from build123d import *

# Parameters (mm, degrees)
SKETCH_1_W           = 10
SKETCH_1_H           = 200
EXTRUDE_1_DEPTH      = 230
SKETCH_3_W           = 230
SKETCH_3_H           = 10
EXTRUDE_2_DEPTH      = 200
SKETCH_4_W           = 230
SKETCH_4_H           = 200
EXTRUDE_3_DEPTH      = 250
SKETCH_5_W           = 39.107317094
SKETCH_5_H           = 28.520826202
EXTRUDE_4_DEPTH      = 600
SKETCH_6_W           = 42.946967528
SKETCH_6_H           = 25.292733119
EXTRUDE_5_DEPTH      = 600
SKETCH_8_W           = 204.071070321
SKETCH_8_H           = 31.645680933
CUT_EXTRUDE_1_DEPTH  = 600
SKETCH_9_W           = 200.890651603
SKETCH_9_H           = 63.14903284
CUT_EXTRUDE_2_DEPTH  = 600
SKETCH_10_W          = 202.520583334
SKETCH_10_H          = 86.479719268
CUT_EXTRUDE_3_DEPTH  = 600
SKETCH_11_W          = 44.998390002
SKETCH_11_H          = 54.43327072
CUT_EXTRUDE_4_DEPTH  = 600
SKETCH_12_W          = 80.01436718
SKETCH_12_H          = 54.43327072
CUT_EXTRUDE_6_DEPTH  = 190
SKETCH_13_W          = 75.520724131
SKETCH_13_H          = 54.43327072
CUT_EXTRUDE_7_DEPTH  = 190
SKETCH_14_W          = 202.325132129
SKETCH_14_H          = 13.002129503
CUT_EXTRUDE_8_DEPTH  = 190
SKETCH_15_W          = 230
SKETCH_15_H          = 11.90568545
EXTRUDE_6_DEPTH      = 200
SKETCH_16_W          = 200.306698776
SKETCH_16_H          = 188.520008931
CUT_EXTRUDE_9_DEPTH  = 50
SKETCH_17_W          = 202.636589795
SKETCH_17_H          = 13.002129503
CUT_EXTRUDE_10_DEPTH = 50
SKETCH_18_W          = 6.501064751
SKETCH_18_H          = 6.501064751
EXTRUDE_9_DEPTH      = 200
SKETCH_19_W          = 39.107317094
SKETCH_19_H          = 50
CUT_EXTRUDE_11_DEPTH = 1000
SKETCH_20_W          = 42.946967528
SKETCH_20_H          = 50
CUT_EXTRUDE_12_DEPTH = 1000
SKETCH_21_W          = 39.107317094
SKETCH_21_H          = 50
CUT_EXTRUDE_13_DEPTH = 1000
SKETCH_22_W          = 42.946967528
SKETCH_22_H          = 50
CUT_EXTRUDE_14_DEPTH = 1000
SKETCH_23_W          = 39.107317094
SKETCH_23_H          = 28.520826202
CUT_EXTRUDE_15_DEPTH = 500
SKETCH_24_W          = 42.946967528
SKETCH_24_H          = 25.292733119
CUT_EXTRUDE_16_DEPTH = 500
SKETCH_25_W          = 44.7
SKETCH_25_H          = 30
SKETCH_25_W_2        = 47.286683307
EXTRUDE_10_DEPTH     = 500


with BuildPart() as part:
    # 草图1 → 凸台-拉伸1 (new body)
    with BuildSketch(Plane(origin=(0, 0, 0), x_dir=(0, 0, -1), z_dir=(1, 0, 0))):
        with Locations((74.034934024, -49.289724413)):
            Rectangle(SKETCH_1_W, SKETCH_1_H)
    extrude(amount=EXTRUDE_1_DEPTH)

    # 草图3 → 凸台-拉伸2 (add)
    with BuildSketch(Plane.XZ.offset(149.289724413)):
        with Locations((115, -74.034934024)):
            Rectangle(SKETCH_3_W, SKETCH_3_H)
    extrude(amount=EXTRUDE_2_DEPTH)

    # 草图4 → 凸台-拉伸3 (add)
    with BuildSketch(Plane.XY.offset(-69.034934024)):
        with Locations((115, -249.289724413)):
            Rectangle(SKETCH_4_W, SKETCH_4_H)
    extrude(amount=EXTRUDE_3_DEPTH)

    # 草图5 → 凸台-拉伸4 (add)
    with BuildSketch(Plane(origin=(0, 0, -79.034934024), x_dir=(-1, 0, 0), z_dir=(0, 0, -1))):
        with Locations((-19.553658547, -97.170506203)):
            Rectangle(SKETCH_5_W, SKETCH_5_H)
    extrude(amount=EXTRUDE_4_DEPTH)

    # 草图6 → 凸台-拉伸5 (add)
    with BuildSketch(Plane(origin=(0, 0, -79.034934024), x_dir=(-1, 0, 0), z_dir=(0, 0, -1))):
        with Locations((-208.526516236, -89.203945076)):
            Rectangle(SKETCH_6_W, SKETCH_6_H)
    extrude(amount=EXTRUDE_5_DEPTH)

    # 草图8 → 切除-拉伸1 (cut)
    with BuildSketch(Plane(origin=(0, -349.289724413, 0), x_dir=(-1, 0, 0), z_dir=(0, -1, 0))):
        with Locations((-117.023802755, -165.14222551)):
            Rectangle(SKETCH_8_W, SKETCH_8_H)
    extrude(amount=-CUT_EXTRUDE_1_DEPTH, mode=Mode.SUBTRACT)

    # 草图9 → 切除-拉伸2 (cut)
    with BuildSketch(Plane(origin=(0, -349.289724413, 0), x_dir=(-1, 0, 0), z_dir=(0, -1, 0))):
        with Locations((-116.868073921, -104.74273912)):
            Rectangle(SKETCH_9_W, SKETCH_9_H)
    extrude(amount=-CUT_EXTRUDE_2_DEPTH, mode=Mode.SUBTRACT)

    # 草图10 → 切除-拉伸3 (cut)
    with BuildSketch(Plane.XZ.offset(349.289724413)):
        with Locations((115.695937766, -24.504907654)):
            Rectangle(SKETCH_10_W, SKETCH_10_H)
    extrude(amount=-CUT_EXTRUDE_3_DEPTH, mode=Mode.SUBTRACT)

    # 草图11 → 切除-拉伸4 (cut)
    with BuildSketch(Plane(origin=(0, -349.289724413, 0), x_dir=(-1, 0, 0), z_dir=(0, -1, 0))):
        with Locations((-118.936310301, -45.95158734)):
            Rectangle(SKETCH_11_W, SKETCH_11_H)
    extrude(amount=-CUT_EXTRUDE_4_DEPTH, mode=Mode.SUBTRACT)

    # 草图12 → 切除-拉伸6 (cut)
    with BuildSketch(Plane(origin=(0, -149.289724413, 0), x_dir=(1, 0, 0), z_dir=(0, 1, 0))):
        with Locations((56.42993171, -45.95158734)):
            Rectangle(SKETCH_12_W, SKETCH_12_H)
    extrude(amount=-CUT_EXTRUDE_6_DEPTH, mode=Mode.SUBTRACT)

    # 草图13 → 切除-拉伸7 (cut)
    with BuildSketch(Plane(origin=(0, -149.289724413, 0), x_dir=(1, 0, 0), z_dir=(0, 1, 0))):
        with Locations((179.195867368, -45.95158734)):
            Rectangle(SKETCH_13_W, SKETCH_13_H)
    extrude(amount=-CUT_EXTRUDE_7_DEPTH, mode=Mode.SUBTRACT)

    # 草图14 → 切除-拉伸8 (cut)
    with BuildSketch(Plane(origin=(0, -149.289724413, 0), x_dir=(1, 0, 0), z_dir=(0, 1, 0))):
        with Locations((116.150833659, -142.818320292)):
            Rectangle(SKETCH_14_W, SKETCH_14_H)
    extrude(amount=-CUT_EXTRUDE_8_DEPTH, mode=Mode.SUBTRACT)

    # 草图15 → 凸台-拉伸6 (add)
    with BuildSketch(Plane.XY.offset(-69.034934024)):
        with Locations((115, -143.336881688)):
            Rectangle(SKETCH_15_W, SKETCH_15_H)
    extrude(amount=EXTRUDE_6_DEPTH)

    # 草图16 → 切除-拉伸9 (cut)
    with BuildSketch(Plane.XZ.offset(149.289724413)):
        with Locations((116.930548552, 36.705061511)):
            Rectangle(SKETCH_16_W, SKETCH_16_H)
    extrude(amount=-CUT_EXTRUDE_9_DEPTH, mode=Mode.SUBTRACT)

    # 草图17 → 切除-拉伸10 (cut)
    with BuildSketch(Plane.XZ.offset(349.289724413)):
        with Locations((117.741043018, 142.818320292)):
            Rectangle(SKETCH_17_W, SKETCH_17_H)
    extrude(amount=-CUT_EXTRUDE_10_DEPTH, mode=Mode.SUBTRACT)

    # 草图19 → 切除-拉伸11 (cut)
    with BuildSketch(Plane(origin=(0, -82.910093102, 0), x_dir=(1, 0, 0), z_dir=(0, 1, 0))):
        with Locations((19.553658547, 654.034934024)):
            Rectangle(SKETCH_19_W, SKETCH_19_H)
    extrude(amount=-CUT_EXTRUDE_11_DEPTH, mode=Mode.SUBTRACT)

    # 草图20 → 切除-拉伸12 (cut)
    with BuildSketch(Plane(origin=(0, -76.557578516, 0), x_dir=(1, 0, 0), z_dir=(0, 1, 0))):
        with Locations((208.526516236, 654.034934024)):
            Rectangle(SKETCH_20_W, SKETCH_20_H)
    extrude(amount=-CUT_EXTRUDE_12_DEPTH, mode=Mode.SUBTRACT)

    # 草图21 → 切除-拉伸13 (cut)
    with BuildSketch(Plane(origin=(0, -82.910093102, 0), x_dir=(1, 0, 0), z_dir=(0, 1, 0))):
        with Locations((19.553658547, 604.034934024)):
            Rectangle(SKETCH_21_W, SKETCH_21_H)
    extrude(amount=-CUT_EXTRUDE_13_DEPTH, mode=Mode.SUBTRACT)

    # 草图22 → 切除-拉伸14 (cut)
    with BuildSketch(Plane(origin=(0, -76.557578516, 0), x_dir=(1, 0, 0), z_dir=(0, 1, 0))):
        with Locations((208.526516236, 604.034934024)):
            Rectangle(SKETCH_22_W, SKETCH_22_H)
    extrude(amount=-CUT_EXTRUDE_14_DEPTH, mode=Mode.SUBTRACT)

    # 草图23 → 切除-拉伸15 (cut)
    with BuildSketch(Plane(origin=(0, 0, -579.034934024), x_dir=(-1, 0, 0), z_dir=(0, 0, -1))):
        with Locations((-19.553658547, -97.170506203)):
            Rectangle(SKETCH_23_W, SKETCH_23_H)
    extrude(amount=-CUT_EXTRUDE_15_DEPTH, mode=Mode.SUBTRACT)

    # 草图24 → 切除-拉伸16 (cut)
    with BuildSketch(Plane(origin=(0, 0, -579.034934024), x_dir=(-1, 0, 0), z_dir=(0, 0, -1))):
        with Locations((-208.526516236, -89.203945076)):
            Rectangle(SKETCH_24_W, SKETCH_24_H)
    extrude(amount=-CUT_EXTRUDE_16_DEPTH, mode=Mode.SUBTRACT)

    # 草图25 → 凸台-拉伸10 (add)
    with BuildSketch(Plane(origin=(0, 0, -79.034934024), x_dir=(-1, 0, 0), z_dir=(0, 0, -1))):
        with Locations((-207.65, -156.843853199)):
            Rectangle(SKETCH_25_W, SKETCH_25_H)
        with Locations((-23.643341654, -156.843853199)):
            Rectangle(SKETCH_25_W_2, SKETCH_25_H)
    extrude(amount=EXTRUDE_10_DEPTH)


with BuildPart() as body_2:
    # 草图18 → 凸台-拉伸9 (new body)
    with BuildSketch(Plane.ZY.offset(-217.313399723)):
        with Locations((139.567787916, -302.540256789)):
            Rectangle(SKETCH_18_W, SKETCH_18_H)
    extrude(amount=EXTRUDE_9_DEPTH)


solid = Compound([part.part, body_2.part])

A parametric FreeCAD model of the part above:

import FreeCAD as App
import Part
import Sketcher

V = App.Vector

doc = App.newDocument("Part")
body = doc.addObject("PartDesign::Body", "Body")

sketch1 = body.newObject("Sketcher::SketchObject", "Sketch")
sketch1.AttachmentSupport = (doc.getObject("YZ_Plane"), [""])
sketch1.MapMode = "FlatFace"
sketch1.addGeometry(Part.LineSegment(V(50.710276, -69.034934, 0), V(-149.289724, -69.034934, 0)), False)
sketch1.addGeometry(Part.LineSegment(V(-149.289724, -69.034934, 0), V(-149.289724, -79.034934, 0)), False)
sketch1.addGeometry(Part.LineSegment(V(-149.289724, -79.034934, 0), V(50.710276, -79.034934, 0)), False)
sketch1.addGeometry(Part.LineSegment(V(50.710276, -79.034934, 0), V(50.710276, -69.034934, 0)), False)
sketch1.addConstraint(Sketcher.Constraint("Coincident", 0, 2, 1, 1))
sketch1.addConstraint(Sketcher.Constraint("Coincident", 1, 2, 2, 1))
sketch1.addConstraint(Sketcher.Constraint("Coincident", 2, 2, 3, 1))
sketch1.addConstraint(Sketcher.Constraint("Coincident", 3, 2, 0, 1))
sketch1.addConstraint(Sketcher.Constraint("Horizontal", 0))
sketch1.addConstraint(Sketcher.Constraint("Vertical", 1))
sketch1.addConstraint(Sketcher.Constraint("Horizontal", 2))
sketch1.addConstraint(Sketcher.Constraint("Vertical", 3))
sketch1.addConstraint(Sketcher.Constraint("DistanceX", 0, 2, 0, 1, 200.0))
sketch1.addConstraint(Sketcher.Constraint("DistanceY", 1, 2, 1, 1, 10.0))
sketch1.addConstraint(Sketcher.Constraint("DistanceX", 0, 2, -1, 1, 149.289724))
sketch1.addConstraint(Sketcher.Constraint("DistanceY", 0, 2, -1, 1, 69.034934))
pad1 = body.newObject("PartDesign::Pad", "Pad")
pad1.Profile = sketch1
pad1.Length = 230

sketch2 = body.newObject("Sketcher::SketchObject", "Sketch001")
sketch2.AttachmentSupport = (doc.getObject("XZ_Plane"), [""])
sketch2.MapMode = "FlatFace"
sketch2.AttachmentOffset = App.Placement(V(0, 0, 149.289724), App.Rotation())
sketch2.addGeometry(Part.LineSegment(V(0, -69.034934, 0), V(0, -79.034934, 0)), False)
sketch2.addGeometry(Part.LineSegment(V(0, -79.034934, 0), V(230, -79.034934, 0)), False)
sketch2.addGeometry(Part.LineSegment(V(230, -79.034934, 0), V(230, -69.034934, 0)), False)
sketch2.addGeometry(Part.LineSegment(V(230, -69.034934, 0), V(0, -69.034934, 0)), False)
sketch2.addConstraint(Sketcher.Constraint("Coincident", 0, 2, 1, 1))
sketch2.addConstraint(Sketcher.Constraint("Coincident", 1, 2, 2, 1))
sketch2.addConstraint(Sketcher.Constraint("Coincident", 2, 2, 3, 1))
sketch2.addConstraint(Sketcher.Constraint("Coincident", 3, 2, 0, 1))
sketch2.addConstraint(Sketcher.Constraint("Vertical", 0))
sketch2.addConstraint(Sketcher.Constraint("Horizontal", 1))
sketch2.addConstraint(Sketcher.Constraint("Vertical", 2))
sketch2.addConstraint(Sketcher.Constraint("Horizontal", 3))
sketch2.addConstraint(Sketcher.Constraint("PointOnObject", 0, 2, -2))
sketch2.addConstraint(Sketcher.Constraint("DistanceX", 1, 1, 1, 2, 230.0))
sketch2.addConstraint(Sketcher.Constraint("DistanceY", 0, 2, 0, 1, 10.0))
sketch2.addConstraint(Sketcher.Constraint("DistanceY", 0, 2, -1, 1, 79.034934))
pad2 = body.newObject("PartDesign::Pad", "Pad001")
pad2.Profile = sketch2
pad2.Length = 200

sketch3 = body.newObject("Sketcher::SketchObject", "Sketch002")
sketch3.AttachmentSupport = (doc.getObject("XY_Plane"), [""])
sketch3.MapMode = "FlatFace"
sketch3.AttachmentOffset = App.Placement(V(0, 0, -69.034934), App.Rotation())
sketch3.addGeometry(Part.LineSegment(V(0, -149.289724, 0), V(0, -349.289724, 0)), False)
sketch3.addGeometry(Part.LineSegment(V(0, -349.289724, 0), V(230, -349.289724, 0)), False)
sketch3.addGeometry(Part.LineSegment(V(230, -349.289724, 0), V(230, -149.289724, 0)), False)
sketch3.addGeometry(Part.LineSegment(V(230, -149.289724, 0), V(0, -149.289724, 0)), False)
sketch3.addConstraint(Sketcher.Constraint("Coincident", 0, 2, 1, 1))
sketch3.addConstraint(Sketcher.Constraint("Coincident", 1, 2, 2, 1))
sketch3.addConstraint(Sketcher.Constraint("Coincident", 2, 2, 3, 1))
sketch3.addConstraint(Sketcher.Constraint("Coincident", 3, 2, 0, 1))
sketch3.addConstraint(Sketcher.Constraint("Vertical", 0))
sketch3.addConstraint(Sketcher.Constraint("Horizontal", 1))
sketch3.addConstraint(Sketcher.Constraint("Vertical", 2))
sketch3.addConstraint(Sketcher.Constraint("Horizontal", 3))
sketch3.addConstraint(Sketcher.Constraint("PointOnObject", 0, 2, -2))
sketch3.addConstraint(Sketcher.Constraint("DistanceX", 1, 1, 1, 2, 230.0))
sketch3.addConstraint(Sketcher.Constraint("DistanceY", 0, 2, 0, 1, 200.0))
sketch3.addConstraint(Sketcher.Constraint("DistanceY", 0, 2, -1, 1, 349.289724))
pad3 = body.newObject("PartDesign::Pad", "Pad002")
pad3.Profile = sketch3
pad3.Length = 250

sketch4 = body.newObject("Sketcher::SketchObject", "Sketch003")
sketch4.AttachmentSupport = (doc.getObject("XY_Plane"), [""])
sketch4.MapMode = "FlatFace"
sketch4.AttachmentOffset = App.Placement(V(0, 0, -79.034934), App.Rotation())
sketch4.addGeometry(Part.LineSegment(V(39.107317, -82.910093, 0), V(39.107317, -111.430919, 0)), False)
sketch4.addGeometry(Part.LineSegment(V(39.107317, -111.430919, 0), V(0, -111.430919, 0)), False)
sketch4.addGeometry(Part.LineSegment(V(0, -111.430919, 0), V(0, -82.910093, 0)), False)
sketch4.addGeometry(Part.LineSegment(V(0, -82.910093, 0), V(39.107317, -82.910093, 0)), False)
sketch4.addConstraint(Sketcher.Constraint("Coincident", 0, 2, 1, 1))
sketch4.addConstraint(Sketcher.Constraint("Coincident", 1, 2, 2, 1))
sketch4.addConstraint(Sketcher.Constraint("Coincident", 2, 2, 3, 1))
sketch4.addConstraint(Sketcher.Constraint("Coincident", 3, 2, 0, 1))
sketch4.addConstraint(Sketcher.Constraint("Vertical", 0))
sketch4.addConstraint(Sketcher.Constraint("Horizontal", 1))
sketch4.addConstraint(Sketcher.Constraint("Vertical", 2))
sketch4.addConstraint(Sketcher.Constraint("Horizontal", 3))
sketch4.addConstraint(Sketcher.Constraint("PointOnObject", 1, 2, -2))
sketch4.addConstraint(Sketcher.Constraint("DistanceX", 1, 2, 1, 1, 39.107317))
sketch4.addConstraint(Sketcher.Constraint("DistanceY", 0, 2, 0, 1, 28.520826))
sketch4.addConstraint(Sketcher.Constraint("DistanceY", 0, 2, -1, 1, 111.430919))
pad4 = body.newObject("PartDesign::Pad", "Pad003")
pad4.Profile = sketch4
pad4.Length = 600
pad4.Reversed = True

sketch5 = body.newObject("Sketcher::SketchObject", "Sketch004")
sketch5.AttachmentSupport = (doc.getObject("XY_Plane"), [""])
sketch5.MapMode = "FlatFace"
sketch5.AttachmentOffset = App.Placement(V(0, 0, -79.034934), App.Rotation())
sketch5.addGeometry(Part.LineSegment(V(230, -76.557579, 0), V(230, -101.850312, 0)), False)
sketch5.addGeometry(Part.LineSegment(V(230, -101.850312, 0), V(187.053032, -101.850312, 0)), False)
sketch5.addGeometry(Part.LineSegment(V(187.053032, -101.850312, 0), V(187.053032, -76.557579, 0)), False)
sketch5.addGeometry(Part.LineSegment(V(187.053032, -76.557579, 0), V(230, -76.557579, 0)), False)
sketch5.addConstraint(Sketcher.Constraint("Coincident", 0, 2, 1, 1))
sketch5.addConstraint(Sketcher.Constraint("Coincident", 1, 2, 2, 1))
sketch5.addConstraint(Sketcher.Constraint("Coincident", 2, 2, 3, 1))
sketch5.addConstraint(Sketcher.Constraint("Coincident", 3, 2, 0, 1))
sketch5.addConstraint(Sketcher.Constraint("Vertical", 0))
sketch5.addConstraint(Sketcher.Constraint("Horizontal", 1))
sketch5.addConstraint(Sketcher.Constraint("Vertical", 2))
sketch5.addConstraint(Sketcher.Constraint("Horizontal", 3))
sketch5.addConstraint(Sketcher.Constraint("DistanceX", -1, 1, 0, 2, 230.0))
sketch5.addConstraint(Sketcher.Constraint("DistanceX", 1, 2, 1, 1, 42.946968))
sketch5.addConstraint(Sketcher.Constraint("DistanceY", 0, 2, 0, 1, 25.292733))
sketch5.addConstraint(Sketcher.Constraint("DistanceY", 0, 2, -1, 1, 101.850312))
pad5 = body.newObject("PartDesign::Pad", "Pad004")
pad5.Profile = sketch5
pad5.Length = 600
pad5.Reversed = True

sketch6 = body.newObject("Sketcher::SketchObject", "Sketch005")
sketch6.AttachmentSupport = (doc.getObject("XZ_Plane"), [""])
sketch6.MapMode = "FlatFace"
sketch6.AttachmentOffset = App.Placement(V(0, 0, 349.289724), App.Rotation())
sketch6.addGeometry(Part.LineSegment(V(219.059338, 149.319385, 0), V(219.059338, 180.965066, 0)), False)
sketch6.addGeometry(Part.LineSegment(V(219.059338, 180.965066, 0), V(14.988268, 180.965066, 0)), False)
sketch6.addGeometry(Part.LineSegment(V(14.988268, 180.965066, 0), V(14.988268, 149.319385, 0)), False)
sketch6.addGeometry(Part.LineSegment(V(14.988268, 149.319385, 0), V(219.059338, 149.319385, 0)), False)
sketch6.addConstraint(Sketcher.Constraint("Coincident", 0, 2, 1, 1))
sketch6.addConstraint(Sketcher.Constraint("Coincident", 1, 2, 2, 1))
sketch6.addConstraint(Sketcher.Constraint("Coincident", 2, 2, 3, 1))
sketch6.addConstraint(Sketcher.Constraint("Coincident", 3, 2, 0, 1))
sketch6.addConstraint(Sketcher.Constraint("Vertical", 0))
sketch6.addConstraint(Sketcher.Constraint("Horizontal", 1))
sketch6.addConstraint(Sketcher.Constraint("Vertical", 2))
sketch6.addConstraint(Sketcher.Constraint("Horizontal", 3))
sketch6.addConstraint(Sketcher.Constraint("DistanceX", 1, 2, 1, 1, 204.07107))
sketch6.addConstraint(Sketcher.Constraint("DistanceY", 0, 1, 0, 2, 31.645681))
sketch6.addConstraint(Sketcher.Constraint("DistanceX", -1, 1, 0, 2, 219.059338))
sketch6.addConstraint(Sketcher.Constraint("DistanceY", -1, 1, 0, 2, 180.965066))
pocket1 = body.newObject("PartDesign::Pocket", "Pocket")
pocket1.Profile = sketch6
pocket1.Length = 600

sketch7 = body.newObject("Sketcher::SketchObject", "Sketch006")
sketch7.AttachmentSupport = (doc.getObject("XZ_Plane"), [""])
sketch7.MapMode = "FlatFace"
sketch7.AttachmentOffset = App.Placement(V(0, 0, 349.289724), App.Rotation())
sketch7.addGeometry(Part.LineSegment(V(217.3134, 73.168223, 0), V(217.3134, 136.317256, 0)), False)
sketch7.addGeometry(Part.LineSegment(V(217.3134, 136.317256, 0), V(16.422748, 136.317256, 0)), False)
sketch7.addGeometry(Part.LineSegment(V(16.422748, 136.317256, 0), V(16.422748, 73.168223, 0)), False)
sketch7.addGeometry(Part.LineSegment(V(16.422748, 73.168223, 0), V(217.3134, 73.168223, 0)), False)
sketch7.addConstraint(Sketcher.Constraint("Coincident", 0, 2, 1, 1))
sketch7.addConstraint(Sketcher.Constraint("Coincident", 1, 2, 2, 1))
sketch7.addConstraint(Sketcher.Constraint("Coincident", 2, 2, 3, 1))
sketch7.addConstraint(Sketcher.Constraint("Coincident", 3, 2, 0, 1))
sketch7.addConstraint(Sketcher.Constraint("Vertical", 0))
sketch7.addConstraint(Sketcher.Constraint("Horizontal", 1))
sketch7.addConstraint(Sketcher.Constraint("Vertical", 2))
sketch7.addConstraint(Sketcher.Constraint("Horizontal", 3))
sketch7.addConstraint(Sketcher.Constraint("DistanceX", 1, 2, 1, 1, 200.890652))
sketch7.addConstraint(Sketcher.Constraint("DistanceX", -1, 1, 0, 2, 217.3134))
sketch7.addConstraint(Sketcher.Constraint("DistanceY", 0, 1, 0, 2, 63.149033))
sketch7.addConstraint(Sketcher.Constraint("DistanceY", -1, 1, 0, 2, 136.317256))
pocket2 = body.newObject("PartDesign::Pocket", "Pocket001")
pocket2.Profile = sketch7
pocket2.Length = 600

sketch8 = body.newObject("Sketcher::SketchObject", "Sketch007")
sketch8.AttachmentSupport = (doc.getObject("XZ_Plane"), [""])
sketch8.MapMode = "FlatFace"
sketch8.AttachmentOffset = App.Placement(V(0, 0, 349.289724), App.Rotation())
sketch8.addGeometry(Part.LineSegment(V(14.435646, 18.734952, 0), V(14.435646, -67.744767, 0)), False)
sketch8.addGeometry(Part.LineSegment(V(14.435646, -67.744767, 0), V(216.956229, -67.744767, 0)), False)
sketch8.addGeometry(Part.LineSegment(V(216.956229, -67.744767, 0), V(216.956229, 18.734952, 0)), False)
sketch8.addGeometry(Part.LineSegment(V(216.956229, 18.734952, 0), V(14.435646, 18.734952, 0)), False)
sketch8.addConstraint(Sketcher.Constraint("Coincident", 0, 2, 1, 1))
sketch8.addConstraint(Sketcher.Constraint("Coincident", 1, 2, 2, 1))
sketch8.addConstraint(Sketcher.Constraint("Coincident", 2, 2, 3, 1))
sketch8.addConstraint(Sketcher.Constraint("Coincident", 3, 2, 0, 1))
sketch8.addConstraint(Sketcher.Constraint("Vertical", 0))
sketch8.addConstraint(Sketcher.Constraint("Horizontal", 1))
sketch8.addConstraint(Sketcher.Constraint("Vertical", 2))
sketch8.addConstraint(Sketcher.Constraint("Horizontal", 3))
sketch8.addConstraint(Sketcher.Constraint("DistanceY", 0, 2, 0, 1, 86.479719))
sketch8.addConstraint(Sketcher.Constraint("DistanceX", 1, 1, 1, 2, 202.520583))
sketch8.addConstraint(Sketcher.Constraint("DistanceX", -1, 1, 1, 2, 216.956229))
sketch8.addConstraint(Sketcher.Constraint("DistanceY", -1, 1, 2, 2, 18.734952))
pocket3 = body.newObject("PartDesign::Pocket", "Pocket002")
pocket3.Profile = sketch8
pocket3.Length = 600

sketch9 = body.newObject("Sketcher::SketchObject", "Sketch008")
sketch9.AttachmentSupport = (doc.getObject("XZ_Plane"), [""])
sketch9.MapMode = "FlatFace"
sketch9.AttachmentOffset = App.Placement(V(0, 0, 349.289724), App.Rotation())
sketch9.addGeometry(Part.LineSegment(V(141.435505, 18.734952, 0), V(141.435505, 73.168223, 0)), False)
sketch9.addGeometry(Part.LineSegment(V(141.435505, 73.168223, 0), V(96.437115, 73.168223, 0)), False)
sketch9.addGeometry(Part.LineSegment(V(96.437115, 73.168223, 0), V(96.437115, 18.734952, 0)), False)
sketch9.addGeometry(Part.LineSegment(V(96.437115, 18.734952, 0), V(141.435505, 18.734952, 0)), False)
sketch9.addConstraint(Sketcher.Constraint("Coincident", 0, 2, 1, 1))
sketch9.addConstraint(Sketcher.Constraint("Coincident", 1, 2, 2, 1))
sketch9.addConstraint(Sketcher.Constraint("Coincident", 2, 2, 3, 1))
sketch9.addConstraint(Sketcher.Constraint("Coincident", 3, 2, 0, 1))
sketch9.addConstraint(Sketcher.Constraint("Vertical", 0))
sketch9.addConstraint(Sketcher.Constraint("Horizontal", 1))
sketch9.addConstraint(Sketcher.Constraint("Vertical", 2))
sketch9.addConstraint(Sketcher.Constraint("Horizontal", 3))
sketch9.addConstraint(Sketcher.Constraint("DistanceX", 1, 2, 1, 1, 44.99839))
sketch9.addConstraint(Sketcher.Constraint("DistanceY", 0, 1, 0, 2, 54.433271))
sketch9.addConstraint(Sketcher.Constraint("DistanceY", -1, 1, 2, 2, 18.734952))
sketch9.addConstraint(Sketcher.Constraint("DistanceX", -1, 1, 0, 2, 141.435505))
pocket4 = body.newObject("PartDesign::Pocket", "Pocket003")
pocket4.Profile = sketch9
pocket4.Length = 600

sketch10 = body.newObject("Sketcher::SketchObject", "Sketch009")
sketch10.AttachmentSupport = (doc.getObject("XZ_Plane"), [""])
sketch10.MapMode = "FlatFace"
sketch10.AttachmentOffset = App.Placement(V(0, 0, 149.289724), App.Rotation())
sketch10.addGeometry(Part.LineSegment(V(16.422748, 18.734952, 0), V(16.422748, 73.168223, 0)), False)
sketch10.addGeometry(Part.LineSegment(V(16.422748, 73.168223, 0), V(96.437115, 73.168223, 0)), False)
sketch10.addGeometry(Part.LineSegment(V(96.437115, 73.168223, 0), V(96.437115, 18.734952, 0)), False)
sketch10.addGeometry(Part.LineSegment(V(96.437115, 18.734952, 0), V(16.422748, 18.734952, 0)), False)
sketch10.addConstraint(Sketcher.Constraint("Coincident", 0, 2, 1, 1))
sketch10.addConstraint(Sketcher.Constraint("Coincident", 1, 2, 2, 1))
sketch10.addConstraint(Sketcher.Constraint("Coincident", 2, 2, 3, 1))
sketch10.addConstraint(Sketcher.Constraint("Coincident", 3, 2, 0, 1))
sketch10.addConstraint(Sketcher.Constraint("Vertical", 0))
sketch10.addConstraint(Sketcher.Constraint("Horizontal", 1))
sketch10.addConstraint(Sketcher.Constraint("Vertical", 2))
sketch10.addConstraint(Sketcher.Constraint("Horizontal", 3))
sketch10.addConstraint(Sketcher.Constraint("DistanceY", 0, 1, 0, 2, 54.433271))
sketch10.addConstraint(Sketcher.Constraint("DistanceX", 1, 1, 1, 2, 80.014367))
sketch10.addConstraint(Sketcher.Constraint("DistanceX", -1, 1, 0, 2, 16.422748))
sketch10.addConstraint(Sketcher.Constraint("DistanceY", -1, 1, 2, 2, 18.734952))
pocket5 = body.newObject("PartDesign::Pocket", "Pocket004")
pocket5.Profile = sketch10
pocket5.Length = 190
pocket5.Reversed = True

sketch11 = body.newObject("Sketcher::SketchObject", "Sketch010")
sketch11.AttachmentSupport = (doc.getObject("XZ_Plane"), [""])
sketch11.MapMode = "FlatFace"
sketch11.AttachmentOffset = App.Placement(V(0, 0, 149.289724), App.Rotation())
sketch11.addGeometry(Part.LineSegment(V(141.435505, 18.734952, 0), V(141.435505, 73.168223, 0)), False)
sketch11.addGeometry(Part.LineSegment(V(141.435505, 73.168223, 0), V(216.956229, 73.168223, 0)), False)
sketch11.addGeometry(Part.LineSegment(V(216.956229, 73.168223, 0), V(216.956229, 18.734952, 0)), False)
sketch11.addGeometry(Part.LineSegment(V(216.956229, 18.734952, 0), V(141.435505, 18.734952, 0)), False)
sketch11.addConstraint(Sketcher.Constraint("Coincident", 0, 2, 1, 1))
sketch11.addConstraint(Sketcher.Constraint("Coincident", 1, 2, 2, 1))
sketch11.addConstraint(Sketcher.Constraint("Coincident", 2, 2, 3, 1))
sketch11.addConstraint(Sketcher.Constraint("Coincident", 3, 2, 0, 1))
sketch11.addConstraint(Sketcher.Constraint("Vertical", 0))
sketch11.addConstraint(Sketcher.Constraint("Horizontal", 1))
sketch11.addConstraint(Sketcher.Constraint("Vertical", 2))
sketch11.addConstraint(Sketcher.Constraint("Horizontal", 3))
sketch11.addConstraint(Sketcher.Constraint("DistanceY", 0, 1, 0, 2, 54.433271))
sketch11.addConstraint(Sketcher.Constraint("DistanceX", 1, 1, 1, 2, 75.520724))
sketch11.addConstraint(Sketcher.Constraint("DistanceX", -1, 1, 1, 2, 216.956229))
sketch11.addConstraint(Sketcher.Constraint("DistanceY", -1, 1, 2, 2, 18.734952))
pocket6 = body.newObject("PartDesign::Pocket", "Pocket005")
pocket6.Profile = sketch11
pocket6.Length = 190
pocket6.Reversed = True

sketch12 = body.newObject("Sketcher::SketchObject", "Sketch011")
sketch12.AttachmentSupport = (doc.getObject("XZ_Plane"), [""])
sketch12.MapMode = "FlatFace"
sketch12.AttachmentOffset = App.Placement(V(0, 0, 149.289724), App.Rotation())
sketch12.addGeometry(Part.LineSegment(V(14.988268, 136.317256, 0), V(14.988268, 149.319385, 0)), False)
sketch12.addGeometry(Part.LineSegment(V(14.988268, 149.319385, 0), V(217.3134, 149.319385, 0)), False)
sketch12.addGeometry(Part.LineSegment(V(217.3134, 149.319385, 0), V(217.3134, 136.317256, 0)), False)
sketch12.addGeometry(Part.LineSegment(V(217.3134, 136.317256, 0), V(14.988268, 136.317256, 0)), False)
sketch12.addConstraint(Sketcher.Constraint("Coincident", 0, 2, 1, 1))
sketch12.addConstraint(Sketcher.Constraint("Coincident", 1, 2, 2, 1))
sketch12.addConstraint(Sketcher.Constraint("Coincident", 2, 2, 3, 1))
sketch12.addConstraint(Sketcher.Constraint("Coincident", 3, 2, 0, 1))
sketch12.addConstraint(Sketcher.Constraint("Vertical", 0))
sketch12.addConstraint(Sketcher.Constraint("Horizontal", 1))
sketch12.addConstraint(Sketcher.Constraint("Vertical", 2))
sketch12.addConstraint(Sketcher.Constraint("Horizontal", 3))
sketch12.addConstraint(Sketcher.Constraint("DistanceY", 0, 1, 0, 2, 13.00213))
sketch12.addConstraint(Sketcher.Constraint("DistanceX", -1, 1, 1, 2, 217.3134))
sketch12.addConstraint(Sketcher.Constraint("DistanceX", 1, 1, 1, 2, 202.325132))
sketch12.addConstraint(Sketcher.Constraint("DistanceY", -1, 1, 0, 2, 149.319385))
pocket7 = body.newObject("PartDesign::Pocket", "Pocket006")
pocket7.Profile = sketch12
pocket7.Length = 190
pocket7.Reversed = True

sketch13 = body.newObject("Sketcher::SketchObject", "Sketch012")
sketch13.AttachmentSupport = (doc.getObject("XY_Plane"), [""])
sketch13.MapMode = "FlatFace"
sketch13.AttachmentOffset = App.Placement(V(0, 0, -69.034934), App.Rotation())
sketch13.addGeometry(Part.LineSegment(V(0, -137.384039, 0), V(0, -149.289724, 0)), False)
sketch13.addGeometry(Part.LineSegment(V(0, -149.289724, 0), V(230, -149.289724, 0)), False)
sketch13.addGeometry(Part.LineSegment(V(230, -149.289724, 0), V(230, -137.384039, 0)), False)
sketch13.addGeometry(Part.LineSegment(V(230, -137.384039, 0), V(0, -137.384039, 0)), False)
sketch13.addConstraint(Sketcher.Constraint("Coincident", 0, 2, 1, 1))
sketch13.addConstraint(Sketcher.Constraint("Coincident", 1, 2, 2, 1))
sketch13.addConstraint(Sketcher.Constraint("Coincident", 2, 2, 3, 1))
sketch13.addConstraint(Sketcher.Constraint("Coincident", 3, 2, 0, 1))
sketch13.addConstraint(Sketcher.Constraint("Vertical", 0))
sketch13.addConstraint(Sketcher.Constraint("Horizontal", 1))
sketch13.addConstraint(Sketcher.Constraint("Vertical", 2))
sketch13.addConstraint(Sketcher.Constraint("Horizontal", 3))
sketch13.addConstraint(Sketcher.Constraint("PointOnObject", 0, 2, -2))
sketch13.addConstraint(Sketcher.Constraint("DistanceX", 1, 1, 1, 2, 230.0))
sketch13.addConstraint(Sketcher.Constraint("DistanceY", 0, 2, 0, 1, 11.905685))
sketch13.addConstraint(Sketcher.Constraint("DistanceY", 2, 2, -1, 1, 137.384039))
pad6 = body.newObject("PartDesign::Pad", "Pad005")
pad6.Profile = sketch13
pad6.Length = 200

sketch14 = body.newObject("Sketcher::SketchObject", "Sketch013")
sketch14.AttachmentSupport = (doc.getObject("XZ_Plane"), [""])
sketch14.MapMode = "FlatFace"
sketch14.AttachmentOffset = App.Placement(V(0, 0, 149.289724), App.Rotation())
sketch14.addGeometry(Part.LineSegment(V(16.777199, 130.965066, 0), V(16.777199, -57.554943, 0)), False)
sketch14.addGeometry(Part.LineSegment(V(16.777199, -57.554943, 0), V(217.083898, -57.554943, 0)), False)
sketch14.addGeometry(Part.LineSegment(V(217.083898, -57.554943, 0), V(217.083898, 130.965066, 0)), False)
sketch14.addGeometry(Part.LineSegment(V(217.083898, 130.965066, 0), V(16.777199, 130.965066, 0)), False)
sketch14.addConstraint(Sketcher.Constraint("Coincident", 0, 2, 1, 1))
sketch14.addConstraint(Sketcher.Constraint("Coincident", 1, 2, 2, 1))
sketch14.addConstraint(Sketcher.Constraint("Coincident", 2, 2, 3, 1))
sketch14.addConstraint(Sketcher.Constraint("Coincident", 3, 2, 0, 1))
sketch14.addConstraint(Sketcher.Constraint("Vertical", 0))
sketch14.addConstraint(Sketcher.Constraint("Horizontal", 1))
sketch14.addConstraint(Sketcher.Constraint("Vertical", 2))
sketch14.addConstraint(Sketcher.Constraint("Horizontal", 3))
sketch14.addConstraint(Sketcher.Constraint("DistanceX", 1, 1, 1, 2, 200.306699))
sketch14.addConstraint(Sketcher.Constraint("DistanceY", 0, 2, 0, 1, 188.520009))
sketch14.addConstraint(Sketcher.Constraint("DistanceX", -1, 1, 0, 2, 16.777199))
sketch14.addConstraint(Sketcher.Constraint("DistanceY", 0, 2, -1, 1, 57.554943))
pocket8 = body.newObject("PartDesign::Pocket", "Pocket007")
pocket8.Profile = sketch14
pocket8.Length = 50

sketch15 = body.newObject("Sketcher::SketchObject", "Sketch014")
sketch15.AttachmentSupport = (doc.getObject("XZ_Plane"), [""])
sketch15.MapMode = "FlatFace"
sketch15.AttachmentOffset = App.Placement(V(0, 0, 349.289724), App.Rotation())
sketch15.addGeometry(Part.LineSegment(V(16.422748, 149.319385, 0), V(16.422748, 136.317256, 0)), False)
sketch15.addGeometry(Part.LineSegment(V(16.422748, 136.317256, 0), V(219.059338, 136.317256, 0)), False)
sketch15.addGeometry(Part.LineSegment(V(219.059338, 136.317256, 0), V(219.059338, 149.319385, 0)), False)
sketch15.addGeometry(Part.LineSegment(V(219.059338, 149.319385, 0), V(16.422748, 149.319385, 0)), False)
sketch15.addConstraint(Sketcher.Constraint("Coincident", 0, 2, 1, 1))
sketch15.addConstraint(Sketcher.Constraint("Coincident", 1, 2, 2, 1))
sketch15.addConstraint(Sketcher.Constraint("Coincident", 2, 2, 3, 1))
sketch15.addConstraint(Sketcher.Constraint("Coincident", 3, 2, 0, 1))
sketch15.addConstraint(Sketcher.Constraint("Vertical", 0))
sketch15.addConstraint(Sketcher.Constraint("Horizontal", 1))
sketch15.addConstraint(Sketcher.Constraint("Vertical", 2))
sketch15.addConstraint(Sketcher.Constraint("Horizontal", 3))
sketch15.addConstraint(Sketcher.Constraint("DistanceX", 1, 1, 1, 2, 202.63659))
sketch15.addConstraint(Sketcher.Constraint("DistanceY", 0, 2, 0, 1, 13.00213))
sketch15.addConstraint(Sketcher.Constraint("DistanceX", -1, 1, 0, 2, 16.422748))
sketch15.addConstraint(Sketcher.Constraint("DistanceY", -1, 1, 0, 2, 136.317256))
pocket9 = body.newObject("PartDesign::Pocket", "Pocket008")
pocket9.Profile = sketch15
pocket9.Length = 50

sketch16 = body.newObject("Sketcher::SketchObject", "Sketch015")
sketch16.AttachmentSupport = (doc.getObject("XZ_Plane"), [""])
sketch16.MapMode = "FlatFace"
sketch16.AttachmentOffset = App.Placement(V(0, 0, 82.910093), App.Rotation())
sketch16.addGeometry(Part.LineSegment(V(0, -679.034934, 0), V(0, -629.034934, 0)), False)
sketch16.addGeometry(Part.LineSegment(V(0, -629.034934, 0), V(39.107317, -629.034934, 0)), False)
sketch16.addGeometry(Part.LineSegment(V(39.107317, -629.034934, 0), V(39.107317, -679.034934, 0)), False)
sketch16.addGeometry(Part.LineSegment(V(39.107317, -679.034934, 0), V(0, -679.034934, 0)), False)
sketch16.addConstraint(Sketcher.Constraint("Coincident", 0, 2, 1, 1))
sketch16.addConstraint(Sketcher.Constraint("Coincident", 1, 2, 2, 1))
sketch16.addConstraint(Sketcher.Constraint("Coincident", 2, 2, 3, 1))
sketch16.addConstraint(Sketcher.Constraint("Coincident", 3, 2, 0, 1))
sketch16.addConstraint(Sketcher.Constraint("Vertical", 0))
sketch16.addConstraint(Sketcher.Constraint("Horizontal", 1))
sketch16.addConstraint(Sketcher.Constraint("Vertical", 2))
sketch16.addConstraint(Sketcher.Constraint("Horizontal", 3))
sketch16.addConstraint(Sketcher.Constraint("PointOnObject", 0, 2, -2))
sketch16.addConstraint(Sketcher.Constraint("DistanceY", 0, 1, 0, 2, 50.0))
sketch16.addConstraint(Sketcher.Constraint("DistanceX", 1, 1, 1, 2, 39.107317))
sketch16.addConstraint(Sketcher.Constraint("DistanceY", 0, 2, -1, 1, 629.034934))
pocket10 = body.newObject("PartDesign::Pocket", "Pocket009")
pocket10.Profile = sketch16
pocket10.Length = 1000
pocket10.Reversed = True

sketch17 = body.newObject("Sketcher::SketchObject", "Sketch016")
sketch17.AttachmentSupport = (doc.getObject("XZ_Plane"), [""])
sketch17.MapMode = "FlatFace"
sketch17.AttachmentOffset = App.Placement(V(0, 0, 76.557579), App.Rotation())
sketch17.addGeometry(Part.LineSegment(V(187.053032, -679.034934, 0), V(187.053032, -629.034934, 0)), False)
sketch17.addGeometry(Part.LineSegment(V(187.053032, -629.034934, 0), V(230, -629.034934, 0)), False)
sketch17.addGeometry(Part.LineSegment(V(230, -629.034934, 0), V(230, -679.034934, 0)), False)
sketch17.addGeometry(Part.LineSegment(V(230, -679.034934, 0), V(187.053032, -679.034934, 0)), False)
sketch17.addConstraint(Sketcher.Constraint("Coincident", 0, 2, 1, 1))
sketch17.addConstraint(Sketcher.Constraint("Coincident", 1, 2, 2, 1))
sketch17.addConstraint(Sketcher.Constraint("Coincident", 2, 2, 3, 1))
sketch17.addConstraint(Sketcher.Constraint("Coincident", 3, 2, 0, 1))
sketch17.addConstraint(Sketcher.Constraint("Vertical", 0))
sketch17.addConstraint(Sketcher.Constraint("Horizontal", 1))
sketch17.addConstraint(Sketcher.Constraint("Vertical", 2))
sketch17.addConstraint(Sketcher.Constraint("Horizontal", 3))
sketch17.addConstraint(Sketcher.Constraint("DistanceY", 0, 1, 0, 2, 50.0))
sketch17.addConstraint(Sketcher.Constraint("DistanceX", -1, 1, 1, 2, 230.0))
sketch17.addConstraint(Sketcher.Constraint("DistanceX", 1, 1, 1, 2, 42.946968))
sketch17.addConstraint(Sketcher.Constraint("DistanceY", 0, 2, -1, 1, 629.034934))
pocket11 = body.newObject("PartDesign::Pocket", "Pocket010")
pocket11.Profile = sketch17
pocket11.Length = 1000
pocket11.Reversed = True

sketch18 = body.newObject("Sketcher::SketchObject", "Sketch017")
sketch18.AttachmentSupport = (doc.getObject("XZ_Plane"), [""])
sketch18.MapMode = "FlatFace"
sketch18.AttachmentOffset = App.Placement(V(0, 0, 82.910093), App.Rotation())
sketch18.addGeometry(Part.LineSegment(V(0, -629.034934, 0), V(0, -579.034934, 0)), False)
sketch18.addGeometry(Part.LineSegment(V(0, -579.034934, 0), V(39.107317, -579.034934, 0)), False)
sketch18.addGeometry(Part.LineSegment(V(39.107317, -579.034934, 0), V(39.107317, -629.034934, 0)), False)
sketch18.addGeometry(Part.LineSegment(V(39.107317, -629.034934, 0), V(0, -629.034934, 0)), False)
sketch18.addConstraint(Sketcher.Constraint("Coincident", 0, 2, 1, 1))
sketch18.addConstraint(Sketcher.Constraint("Coincident", 1, 2, 2, 1))
sketch18.addConstraint(Sketcher.Constraint("Coincident", 2, 2, 3, 1))
sketch18.addConstraint(Sketcher.Constraint("Coincident", 3, 2, 0, 1))
sketch18.addConstraint(Sketcher.Constraint("Vertical", 0))
sketch18.addConstraint(Sketcher.Constraint("Horizontal", 1))
sketch18.addConstraint(Sketcher.Constraint("Vertical", 2))
sketch18.addConstraint(Sketcher.Constraint("Horizontal", 3))
sketch18.addConstraint(Sketcher.Constraint("PointOnObject", 0, 2, -2))
sketch18.addConstraint(Sketcher.Constraint("DistanceY", 0, 1, 0, 2, 50.0))
sketch18.addConstraint(Sketcher.Constraint("DistanceX", 1, 1, 1, 2, 39.107317))
sketch18.addConstraint(Sketcher.Constraint("DistanceY", 0, 2, -1, 1, 579.034934))
pocket12 = body.newObject("PartDesign::Pocket", "Pocket011")
pocket12.Profile = sketch18
pocket12.Length = 1000
pocket12.Reversed = True

sketch19 = body.newObject("Sketcher::SketchObject", "Sketch018")
sketch19.AttachmentSupport = (doc.getObject("XZ_Plane"), [""])
sketch19.MapMode = "FlatFace"
sketch19.AttachmentOffset = App.Placement(V(0, 0, 76.557579), App.Rotation())
sketch19.addGeometry(Part.LineSegment(V(187.053032, -629.034934, 0), V(187.053032, -579.034934, 0)), False)
sketch19.addGeometry(Part.LineSegment(V(187.053032, -579.034934, 0), V(230, -579.034934, 0)), False)
sketch19.addGeometry(Part.LineSegment(V(230, -579.034934, 0), V(230, -629.034934, 0)), False)
sketch19.addGeometry(Part.LineSegment(V(230, -629.034934, 0), V(187.053032, -629.034934, 0)), False)
sketch19.addConstraint(Sketcher.Constraint("Coincident", 0, 2, 1, 1))
sketch19.addConstraint(Sketcher.Constraint("Coincident", 1, 2, 2, 1))
sketch19.addConstraint(Sketcher.Constraint("Coincident", 2, 2, 3, 1))
sketch19.addConstraint(Sketcher.Constraint("Coincident", 3, 2, 0, 1))
sketch19.addConstraint(Sketcher.Constraint("Vertical", 0))
sketch19.addConstraint(Sketcher.Constraint("Horizontal", 1))
sketch19.addConstraint(Sketcher.Constraint("Vertical", 2))
sketch19.addConstraint(Sketcher.Constraint("Horizontal", 3))
sketch19.addConstraint(Sketcher.Constraint("DistanceY", 0, 1, 0, 2, 50.0))
sketch19.addConstraint(Sketcher.Constraint("DistanceX", -1, 1, 1, 2, 230.0))
sketch19.addConstraint(Sketcher.Constraint("DistanceX", 1, 1, 1, 2, 42.946968))
sketch19.addConstraint(Sketcher.Constraint("DistanceY", 0, 2, -1, 1, 579.034934))
pocket13 = body.newObject("PartDesign::Pocket", "Pocket012")
pocket13.Profile = sketch19
pocket13.Length = 1000
pocket13.Reversed = True

sketch20 = body.newObject("Sketcher::SketchObject", "Sketch019")
sketch20.AttachmentSupport = (doc.getObject("XY_Plane"), [""])
sketch20.MapMode = "FlatFace"
sketch20.AttachmentOffset = App.Placement(V(0, 0, -579.034934), App.Rotation())
sketch20.addGeometry(Part.LineSegment(V(39.107317, -82.910093, 0), V(39.107317, -111.430919, 0)), False)
sketch20.addGeometry(Part.LineSegment(V(39.107317, -111.430919, 0), V(0, -111.430919, 0)), False)
sketch20.addGeometry(Part.LineSegment(V(0, -111.430919, 0), V(0, -82.910093, 0)), False)
sketch20.addGeometry(Part.LineSegment(V(0, -82.910093, 0), V(39.107317, -82.910093, 0)), False)
sketch20.addConstraint(Sketcher.Constraint("Coincident", 0, 2, 1, 1))
sketch20.addConstraint(Sketcher.Constraint("Coincident", 1, 2, 2, 1))
sketch20.addConstraint(Sketcher.Constraint("Coincident", 2, 2, 3, 1))
sketch20.addConstraint(Sketcher.Constraint("Coincident", 3, 2, 0, 1))
sketch20.addConstraint(Sketcher.Constraint("Vertical", 0))
sketch20.addConstraint(Sketcher.Constraint("Horizontal", 1))
sketch20.addConstraint(Sketcher.Constraint("Vertical", 2))
sketch20.addConstraint(Sketcher.Constraint("Horizontal", 3))
sketch20.addConstraint(Sketcher.Constraint("PointOnObject", 1, 2, -2))
sketch20.addConstraint(Sketcher.Constraint("DistanceX", 1, 2, 1, 1, 39.107317))
sketch20.addConstraint(Sketcher.Constraint("DistanceY", 0, 2, 0, 1, 28.520826))
sketch20.addConstraint(Sketcher.Constraint("DistanceY", 0, 2, -1, 1, 111.430919))
pocket14 = body.newObject("PartDesign::Pocket", "Pocket013")
pocket14.Profile = sketch20
pocket14.Length = 500
pocket14.Reversed = True

sketch21 = body.newObject("Sketcher::SketchObject", "Sketch020")
sketch21.AttachmentSupport = (doc.getObject("XY_Plane"), [""])
sketch21.MapMode = "FlatFace"
sketch21.AttachmentOffset = App.Placement(V(0, 0, -579.034934), App.Rotation())
sketch21.addGeometry(Part.LineSegment(V(230, -76.557579, 0), V(230, -101.850312, 0)), False)
sketch21.addGeometry(Part.LineSegment(V(230, -101.850312, 0), V(187.053032, -101.850312, 0)), False)
sketch21.addGeometry(Part.LineSegment(V(187.053032, -101.850312, 0), V(187.053032, -76.557579, 0)), False)
sketch21.addGeometry(Part.LineSegment(V(187.053032, -76.557579, 0), V(230, -76.557579, 0)), False)
sketch21.addConstraint(Sketcher.Constraint("Coincident", 0, 2, 1, 1))
sketch21.addConstraint(Sketcher.Constraint("Coincident", 1, 2, 2, 1))
sketch21.addConstraint(Sketcher.Constraint("Coincident", 2, 2, 3, 1))
sketch21.addConstraint(Sketcher.Constraint("Coincident", 3, 2, 0, 1))
sketch21.addConstraint(Sketcher.Constraint("Vertical", 0))
sketch21.addConstraint(Sketcher.Constraint("Horizontal", 1))
sketch21.addConstraint(Sketcher.Constraint("Vertical", 2))
sketch21.addConstraint(Sketcher.Constraint("Horizontal", 3))
sketch21.addConstraint(Sketcher.Constraint("DistanceX", -1, 1, 0, 2, 230.0))
sketch21.addConstraint(Sketcher.Constraint("DistanceX", 1, 2, 1, 1, 42.946968))
sketch21.addConstraint(Sketcher.Constraint("DistanceY", 0, 2, 0, 1, 25.292733))
sketch21.addConstraint(Sketcher.Constraint("DistanceY", 0, 2, -1, 1, 101.850312))
pocket15 = body.newObject("PartDesign::Pocket", "Pocket014")
pocket15.Profile = sketch21
pocket15.Length = 500
pocket15.Reversed = True

sketch22 = body.newObject("Sketcher::SketchObject", "Sketch021")
sketch22.AttachmentSupport = (doc.getObject("XY_Plane"), [""])
sketch22.MapMode = "FlatFace"
sketch22.AttachmentOffset = App.Placement(V(0, 0, -79.034934), App.Rotation())
sketch22.addGeometry(Part.LineSegment(V(230, -141.843853, 0), V(230, -171.843853, 0)), False)
sketch22.addGeometry(Part.LineSegment(V(230, -171.843853, 0), V(185.3, -171.843853, 0)), False)
sketch22.addGeometry(Part.LineSegment(V(185.3, -171.843853, 0), V(185.3, -141.843853, 0)), False)
sketch22.addGeometry(Part.LineSegment(V(185.3, -141.843853, 0), V(230, -141.843853, 0)), False)
sketch22.addGeometry(Part.LineSegment(V(47.286683, -141.843853, 0), V(47.286683, -171.843853, 0)), False)
sketch22.addGeometry(Part.LineSegment(V(47.286683, -171.843853, 0), V(0, -171.843853, 0)), False)
sketch22.addGeometry(Part.LineSegment(V(0, -171.843853, 0), V(0, -141.843853, 0)), False)
sketch22.addGeometry(Part.LineSegment(V(0, -141.843853, 0), V(47.286683, -141.843853, 0)), False)
sketch22.addConstraint(Sketcher.Constraint("Coincident", 0, 2, 1, 1))
sketch22.addConstraint(Sketcher.Constraint("Coincident", 1, 2, 2, 1))
sketch22.addConstraint(Sketcher.Constraint("Coincident", 2, 2, 3, 1))
sketch22.addConstraint(Sketcher.Constraint("Coincident", 3, 2, 0, 1))
sketch22.addConstraint(Sketcher.Constraint("Coincident", 4, 2, 5, 1))
sketch22.addConstraint(Sketcher.Constraint("Coincident", 5, 2, 6, 1))
sketch22.addConstraint(Sketcher.Constraint("Coincident", 6, 2, 7, 1))
sketch22.addConstraint(Sketcher.Constraint("Coincident", 7, 2, 4, 1))
sketch22.addConstraint(Sketcher.Constraint("Vertical", 0))
sketch22.addConstraint(Sketcher.Constraint("Horizontal", 1))
sketch22.addConstraint(Sketcher.Constraint("Vertical", 2))
sketch22.addConstraint(Sketcher.Constraint("Horizontal", 3))
sketch22.addConstraint(Sketcher.Constraint("Vertical", 4))
sketch22.addConstraint(Sketcher.Constraint("Horizontal", 5))
sketch22.addConstraint(Sketcher.Constraint("Vertical", 6))
sketch22.addConstraint(Sketcher.Constraint("Horizontal", 7))
sketch22.addConstraint(Sketcher.Constraint("PointOnObject", 5, 2, -2))
sketch22.addConstraint(Sketcher.Constraint("Horizontal", 1, 2, 4, 2))
sketch22.addConstraint(Sketcher.Constraint("Horizontal", 3, 2, 6, 2))
sketch22.addConstraint(Sketcher.Constraint("DistanceY", 0, 2, 0, 1, 30.0))
sketch22.addConstraint(Sketcher.Constraint("DistanceX", 1, 2, 1, 1, 44.7))
sketch22.addConstraint(Sketcher.Constraint("DistanceX", -1, 1, 0, 2, 230.0))
sketch22.addConstraint(Sketcher.Constraint("DistanceX", 5, 2, 5, 1, 47.286683))
sketch22.addConstraint(Sketcher.Constraint("DistanceY", 0, 2, -1, 1, 171.843853))
pad7 = body.newObject("PartDesign::Pad", "Pad006")
pad7.Profile = sketch22
pad7.Length = 500
pad7.Reversed = True
body2 = doc.addObject("PartDesign::Body", "Body001")

sketch23 = body2.newObject("Sketcher::SketchObject", "Sketch022")
sketch23.AttachmentSupport = (doc.getObject("YZ_Plane001"), [""])
sketch23.MapMode = "FlatFace"
sketch23.AttachmentOffset = App.Placement(V(0, 0, 217.3134), App.Rotation())
sketch23.addGeometry(Part.LineSegment(V(-299.289724, 136.317256, 0), V(-305.790789, 136.317256, 0)), False)
sketch23.addGeometry(Part.LineSegment(V(-305.790789, 136.317256, 0), V(-305.790789, 142.81832, 0)), False)
sketch23.addGeometry(Part.LineSegment(V(-305.790789, 142.81832, 0), V(-299.289724, 142.81832, 0)), False)
sketch23.addGeometry(Part.LineSegment(V(-299.289724, 142.81832, 0), V(-299.289724, 136.317256, 0)), False)
sketch23.addConstraint(Sketcher.Constraint("Coincident", 0, 2, 1, 1))
sketch23.addConstraint(Sketcher.Constraint("Coincident", 1, 2, 2, 1))
sketch23.addConstraint(Sketcher.Constraint("Coincident", 2, 2, 3, 1))
sketch23.addConstraint(Sketcher.Constraint("Coincident", 3, 2, 0, 1))
sketch23.addConstraint(Sketcher.Constraint("Horizontal", 0))
sketch23.addConstraint(Sketcher.Constraint("Vertical", 1))
sketch23.addConstraint(Sketcher.Constraint("Horizontal", 2))
sketch23.addConstraint(Sketcher.Constraint("Vertical", 3))
sketch23.addConstraint(Sketcher.Constraint("Equal", 2, 1))
sketch23.addConstraint(Sketcher.Constraint("DistanceX", 0, 2, 0, 1, 6.501065))
sketch23.addConstraint(Sketcher.Constraint("DistanceX", 0, 2, -1, 1, 305.790789))
sketch23.addConstraint(Sketcher.Constraint("DistanceY", -1, 1, 1, 2, 142.81832))
pad8 = body2.newObject("PartDesign::Pad", "Pad007")
pad8.Profile = sketch23
pad8.Length = 200
pad8.Reversed = True

doc.recompute()
